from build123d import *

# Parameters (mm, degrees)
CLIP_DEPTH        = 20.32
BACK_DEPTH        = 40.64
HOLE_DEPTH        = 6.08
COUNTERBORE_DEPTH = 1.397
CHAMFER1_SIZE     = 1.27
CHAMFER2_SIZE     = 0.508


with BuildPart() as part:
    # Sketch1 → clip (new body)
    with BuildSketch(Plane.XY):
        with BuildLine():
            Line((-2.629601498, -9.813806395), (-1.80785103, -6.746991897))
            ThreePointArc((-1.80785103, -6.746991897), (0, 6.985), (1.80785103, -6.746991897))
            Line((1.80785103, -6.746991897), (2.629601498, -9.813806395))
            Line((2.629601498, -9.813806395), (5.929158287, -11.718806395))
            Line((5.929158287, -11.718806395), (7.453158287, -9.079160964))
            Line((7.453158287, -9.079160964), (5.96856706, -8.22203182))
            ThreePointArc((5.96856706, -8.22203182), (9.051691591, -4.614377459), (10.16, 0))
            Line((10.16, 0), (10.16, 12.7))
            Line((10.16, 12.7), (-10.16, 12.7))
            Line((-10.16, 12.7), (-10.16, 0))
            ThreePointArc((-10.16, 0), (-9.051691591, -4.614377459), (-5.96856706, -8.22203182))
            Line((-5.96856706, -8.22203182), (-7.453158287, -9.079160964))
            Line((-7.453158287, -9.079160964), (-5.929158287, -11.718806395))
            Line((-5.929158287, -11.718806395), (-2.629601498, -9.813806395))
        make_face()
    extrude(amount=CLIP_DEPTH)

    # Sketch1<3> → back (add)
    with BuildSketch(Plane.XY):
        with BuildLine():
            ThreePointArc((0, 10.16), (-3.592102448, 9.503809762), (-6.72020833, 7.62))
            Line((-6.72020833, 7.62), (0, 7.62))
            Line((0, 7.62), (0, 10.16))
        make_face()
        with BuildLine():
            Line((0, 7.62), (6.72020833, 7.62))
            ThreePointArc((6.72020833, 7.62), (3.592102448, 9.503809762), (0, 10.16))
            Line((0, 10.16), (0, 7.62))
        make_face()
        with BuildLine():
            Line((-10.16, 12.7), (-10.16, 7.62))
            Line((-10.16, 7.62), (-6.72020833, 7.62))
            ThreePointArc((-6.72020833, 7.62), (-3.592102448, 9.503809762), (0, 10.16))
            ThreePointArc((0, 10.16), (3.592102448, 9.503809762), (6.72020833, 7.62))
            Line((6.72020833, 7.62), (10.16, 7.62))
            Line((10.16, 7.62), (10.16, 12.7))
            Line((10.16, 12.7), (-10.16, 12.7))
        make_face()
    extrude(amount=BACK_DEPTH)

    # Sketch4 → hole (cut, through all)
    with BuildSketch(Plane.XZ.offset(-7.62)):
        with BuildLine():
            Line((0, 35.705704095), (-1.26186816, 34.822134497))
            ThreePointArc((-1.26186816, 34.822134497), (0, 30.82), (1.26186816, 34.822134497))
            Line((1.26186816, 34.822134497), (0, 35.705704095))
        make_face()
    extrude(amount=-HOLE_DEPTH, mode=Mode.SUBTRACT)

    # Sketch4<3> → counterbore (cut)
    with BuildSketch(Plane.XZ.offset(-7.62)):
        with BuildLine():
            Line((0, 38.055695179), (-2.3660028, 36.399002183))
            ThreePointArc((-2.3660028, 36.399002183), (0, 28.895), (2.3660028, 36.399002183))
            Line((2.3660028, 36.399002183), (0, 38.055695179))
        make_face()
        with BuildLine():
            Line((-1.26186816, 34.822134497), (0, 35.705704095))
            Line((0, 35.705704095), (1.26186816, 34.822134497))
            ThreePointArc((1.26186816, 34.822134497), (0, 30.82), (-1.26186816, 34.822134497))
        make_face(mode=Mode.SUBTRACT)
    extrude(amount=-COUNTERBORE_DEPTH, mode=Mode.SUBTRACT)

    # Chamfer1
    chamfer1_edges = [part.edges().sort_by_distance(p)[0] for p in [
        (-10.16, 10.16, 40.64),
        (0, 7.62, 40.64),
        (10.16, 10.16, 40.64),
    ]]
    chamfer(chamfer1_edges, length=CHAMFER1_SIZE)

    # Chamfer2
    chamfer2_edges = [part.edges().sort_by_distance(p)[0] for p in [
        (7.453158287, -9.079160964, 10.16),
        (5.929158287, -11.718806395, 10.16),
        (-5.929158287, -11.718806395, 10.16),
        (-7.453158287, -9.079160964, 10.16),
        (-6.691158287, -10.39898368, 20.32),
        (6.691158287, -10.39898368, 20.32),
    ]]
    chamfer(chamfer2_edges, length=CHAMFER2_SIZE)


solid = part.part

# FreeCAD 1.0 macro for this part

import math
import FreeCAD as App
import Part
import Sketcher

V = App.Vector
Q = App.Units.Quantity


def edges_at(feature, points):
    """Names of the edges that pass closest to the given points."""
    edges = feature.Shape.Edges
    near = lambda p: min(range(len(edges)), key=lambda i: edges[i].distToShape(Part.Vertex(*p))[0])
    return sorted({f"Edge{near(p) + 1}" for p in points})

doc = App.newDocument("Part")
params = doc.addObject("Spreadsheet::Sheet", "Params")
for row, (alias, value) in enumerate([
    ("sketch1_radius", "0.4 in"),
    ("sketch1_height", "0.5 in"),
    ("sketch1_radius2", "0.275 in"),
    ("sketch1_length", "0.15 in"),
    ("sketch1_length2", "0.12 in"),
    ("pad1_length", "0.8 in"),
    ("sketch2_width", "0.8 in"),
    ("sketch2_height", "0.2 in"),
    ("pad2_length", "1.6 in"),
    ("pocket2_length", "0.055 in"),
    ("chamfer_size", "0.05 in"),
    ("chamfer2_size", "0.02 in"),
], start=1):
    params.set(f"A{row}", alias)
    params.set(f"B{row}", "=" + value)
    params.setAlias(f"B{row}", alias)

body = doc.addObject("PartDesign::Body", "Body")

sketch1 = body.newObject("Sketcher::SketchObject", "Sketch")
sketch1.AttachmentSupport = (doc.getObject("XY_Plane"), [""])
sketch1.MapMode = "FlatFace"
sketch1.addGeometry([
    Part.LineSegment(V(-2.6, -9.8, 0), V(-1.8, -6.7, 0)),
    Part.ArcOfCircle(Part.Circle(V(0, 0, 0), V(0, 0, 1), 7), math.radians(-75), math.radians(255)),
    Part.LineSegment(V(1.8, -6.7, 0), V(2.6, -9.8, 0)),
    Part.LineSegment(V(2.6, -9.8, 0), V(5.9, -11.7, 0)),
    Part.LineSegment(V(5.9, -11.7, 0), V(7.5, -9.1, 0)),
    Part.LineSegment(V(7.5, -9.1, 0), V(6, -8.2, 0)),
    Part.ArcOfCircle(Part.Circle(V(0, 0, 0), V(0, 0, 1), 10.2), math.radians(-54), math.radians(0)),
    Part.LineSegment(V(10.2, 0, 0), V(10.2, 12.7, 0)),
    Part.LineSegment(V(10.2, 12.7, 0), V(-10.2, 12.7, 0)),
    Part.LineSegment(V(-10.2, 12.7, 0), V(-10.2, 0, 0)),
    Part.ArcOfCircle(Part.Circle(V(0, 0, 0), V(0, 0, 1), 10.2), math.radians(-180), math.radians(-126)),
    Part.LineSegment(V(-6, -8.2, 0), V(-7.5, -9.1, 0)),
    Part.LineSegment(V(-7.5, -9.1, 0), V(-5.9, -11.7, 0)),
    Part.LineSegment(V(-5.9, -11.7, 0), V(-2.6, -9.8, 0)),
], False)
sketch1.addConstraint([
    Sketcher.Constraint("Coincident", 0, 2, 1, 2),
    Sketcher.Constraint("Coincident", 1, 1, 2, 1),
    Sketcher.Constraint("Coincident", 2, 2, 3, 1),
    Sketcher.Constraint("Coincident", 3, 2, 4, 1),
    Sketcher.Constraint("Coincident", 4, 2, 5, 1),
    Sketcher.Constraint("Coincident", 5, 2, 6, 1),
    Sketcher.Constraint("Tangent", 6, 2, 7, 1),
    Sketcher.Constraint("Coincident", 7, 2, 8, 1),
    Sketcher.Constraint("Coincident", 8, 2, 9, 1),
    Sketcher.Constraint("Tangent", 9, 2, 10, 1),
    Sketcher.Constraint("Coincident", 10, 2, 11, 1),
    Sketcher.Constraint("Coincident", 11, 2, 12, 1),
    Sketcher.Constraint("Coincident", 12, 2, 13, 1),
    Sketcher.Constraint("Coincident", 13, 2, 0, 1),
    Sketcher.Constraint("Vertical", 7),
    Sketcher.Constraint("Horizontal", 8),
    Sketcher.Constraint("Vertical", 9),
    Sketcher.Constraint("Coincident", 1, 3, -1, 1),
    Sketcher.Constraint("Coincident", 6, 3, -1, 1),
    Sketcher.Constraint("Coincident", 10, 3, -1, 1),
    Sketcher.Constraint("Equal", 6, 10),
    Sketcher.Constraint("Symmetric", 4, 2, 11, 2, -2),
    Sketcher.Constraint("Symmetric", 3, 2, 12, 2, -2),
    Sketcher.Constraint("Symmetric", 2, 2, 13, 2, -2),
    Sketcher.Constraint("Perpendicular", 3, 4),
    Sketcher.Constraint("Perpendicular", 4, 5),
    Sketcher.Constraint("Perpendicular", 11, 12),
    Sketcher.Constraint("Horizontal", 0, 2, 1, 1),
    Sketcher.Constraint("Radius", 6, Q("0.4 in")),
    Sketcher.Constraint("DistanceY", 7, 1, 7, 2, Q("0.5 in")),
    Sketcher.Constraint("Angle", 0, Q("75 deg")),
    Sketcher.Constraint("Angle", 3, Q("-30 deg")),
    Sketcher.Constraint("Radius", 1, Q("0.275 in")),
    Sketcher.Constraint("Distance", 3, Q("0.15 in")),
    Sketcher.Constraint("Distance", 4, Q("0.12 in")),
    Sketcher.Constraint("Distance", 0, Q("0.125 in")),
    Sketcher.Constraint("DistanceX", -1, 1, 2, 2, 2.629601),
])
sketch1.setExpression("Constraints[28]", "Params.sketch1_radius")
sketch1.setExpression("Constraints[29]", "Params.sketch1_height")
sketch1.setExpression("Constraints[32]", "Params.sketch1_radius2")
sketch1.setExpression("Constraints[33]", "Params.sketch1_length")
sketch1.setExpression("Constraints[34]", "Params.sketch1_length2")
pad1 = body.newObject("PartDesign::Pad", "Pad")
pad1.Profile = sketch1
pad1.setExpression("Length", "Params.pad1_length")

sketch2 = body.newObject("Sketcher::SketchObject", "Sketch001")
sketch2.AttachmentSupport = (doc.getObject("XY_Plane"), [""])
sketch2.MapMode = "FlatFace"
sketch2.addGeometry([
    Part.LineSegment(V(10, 8, 0), V(10, 13, 0)),
    Part.LineSegment(V(10, 13, 0), V(-10, 13, 0)),
    Part.LineSegment(V(-10, 13, 0), V(-10, 8, 0)),
    Part.LineSegment(V(-10, 8, 0), V(10, 8, 0)),
], False)
sketch2.addConstraint([
    Sketcher.Constraint("Coincident", 0, 2, 1, 1),
    Sketcher.Constraint("Coincident", 1, 2, 2, 1),
    Sketcher.Constraint("Coincident", 2, 2, 3, 1),
    Sketcher.Constraint("Coincident", 3, 2, 0, 1),
    Sketcher.Constraint("Vertical", 0),
    Sketcher.Constraint("Horizontal", 1),
    Sketcher.Constraint("Vertical", 2),
    Sketcher.Constraint("Horizontal", 3),
    Sketcher.Constraint("DistanceX", 1, 2, 1, 1, Q("0.8 in")),
    Sketcher.Constraint("DistanceY", 0, 1, 0, 2, Q("0.2 in")),
    Sketcher.Constraint("DistanceX", -1, 1, 0, 2, Q("0.4 in")),
    Sketcher.Constraint("DistanceY", -1, 1, 0, 2, Q("0.5 in")),
])
sketch2.setExpression("Constraints[8]", "Params.sketch2_width")
sketch2.setExpression("Constraints[9]", "Params.sketch2_height")
pad2 = body.newObject("PartDesign::Pad", "Pad001")
pad2.Profile = sketch2
pad2.setExpression("Length", "Params.pad2_length")

sketch3 = body.newObject("Sketcher::SketchObject", "Sketch002")
sketch3.AttachmentSupport = (doc.getObject("XZ_Plane"), [""])
sketch3.MapMode = "FlatFace"
sketch3.AttachmentOffset = App.Placement(V(0, 0, -0.3 * 25.4), App.Rotation())
sketch3.addGeometry([
    Part.LineSegment(V(0, 35.7, 0), V(-1.3, 34.8, 0)),
    Part.ArcOfCircle(Part.Circle(V(0, 33, 0), V(0, 0, 1), 2.2), math.radians(125), math.radians(415)),
    Part.LineSegment(V(1.3, 34.8, 0), V(0, 35.7, 0)),
], False)
sketch3.addConstraint([
    Sketcher.Constraint("Tangent", 0, 2, 1, 1),
    Sketcher.Constraint("Tangent", 1, 2, 2, 1),
    Sketcher.Constraint("Coincident", 2, 2, 0, 1),
    Sketcher.Constraint("Symmetric", 0, 2, 1, 2, -2),
    Sketcher.Constraint("Angle", 0, Q("-145 deg")),
    Sketcher.Constraint("DistanceY", -1, 1, 1, 3, Q("1.3 in")),
    Sketcher.Constraint("Radius", 1, 2.2),
])
pocket1 = body.newObject("PartDesign::Pocket", "Pocket")
pocket1.Profile = sketch3
pocket1.Type = "ThroughAll"

sketch4 = body.newObject("Sketcher::SketchObject", "Sketch003")
sketch4.AttachmentSupport = (doc.getObject("XZ_Plane"), [""])
sketch4.MapMode = "FlatFace"
sketch4.AttachmentOffset = App.Placement(V(0, 0, -0.3 * 25.4), App.Rotation())
sketch4.addGeometry([
    Part.LineSegment(V(0, 38.1, 0), V(-2.4, 36.4, 0)),
    Part.ArcOfCircle(Part.Circle(V(0, 33, 0), V(0, 0, 1), 4.1), math.radians(125), math.radians(415)),
    Part.LineSegment(V(2.4, 36.4, 0), V(0, 38.1, 0)),
    Part.ArcOfCircle(Part.Circle(V(0, 33, 0), V(0, 0, 1), 2.2), math.radians(125), math.radians(415)),
    Part.LineSegment(V(-1.3, 34.8, 0), V(0, 35.7, 0)),
    Part.LineSegment(V(0, 35.7, 0), V(1.3, 34.8, 0)),
], False)
sketch4.addConstraint([
    Sketcher.Constraint("Tangent", 0, 2, 1, 1),
    Sketcher.Constraint("Tangent", 1, 2, 2, 1),
    Sketcher.Constraint("Coincident", 2, 2, 0, 1),
    Sketcher.Constraint("Tangent", 3, 1, 4, 1),
    Sketcher.Constraint("Coincident", 4, 2, 5, 1),
    Sketcher.Constraint("Tangent", 5, 2, 3, 2),
    Sketcher.Constraint("Coincident", 3, 3, 1, 3),
    Sketcher.Constraint("Symmetric", 0, 2, 1, 2, -2),
    Sketcher.Constraint("PointOnObject", 4, 2, -2),
    Sketcher.Constraint("Parallel", 0, 4),
    Sketcher.Constraint("Angle", 0, Q("-145 deg")),
    Sketcher.Constraint("DistanceY", -1, 1, 1, 3, Q("1.3 in")),
    Sketcher.Constraint("Radius", 1, 4.125),
    Sketcher.Constraint("Radius", 3, 2.2),
])
pocket2 = body.newObject("PartDesign::Pocket", "Pocket001")
pocket2.Profile = sketch4
pocket2.setExpression("Length", "Params.pocket2_length")
doc.recompute()

chamfer = body.newObject("PartDesign::Chamfer", "Chamfer")
chamfer.Base = (pocket2, edges_at(pocket2, [(-10.16, 10.16, 40.64), (0, 7.62, 40.64), (10.16, 10.16, 40.64)]))
chamfer.setExpression("Size", "Params.chamfer_size")
doc.recompute()

chamfer2 = body.newObject("PartDesign::Chamfer", "Chamfer001")
chamfer2.Base = (chamfer, edges_at(chamfer, [
    (7.453, -9.079, 10.16),
    (5.929, -11.719, 10.16),
    (-5.929, -11.719, 10.16),
    (-7.453, -9.079, 10.16),
    (-6.691, -10.399, 20.32),
    (6.691, -10.399, 20.32),
]))
chamfer2.setExpression("Size", "Params.chamfer2_size")

doc.recompute()
